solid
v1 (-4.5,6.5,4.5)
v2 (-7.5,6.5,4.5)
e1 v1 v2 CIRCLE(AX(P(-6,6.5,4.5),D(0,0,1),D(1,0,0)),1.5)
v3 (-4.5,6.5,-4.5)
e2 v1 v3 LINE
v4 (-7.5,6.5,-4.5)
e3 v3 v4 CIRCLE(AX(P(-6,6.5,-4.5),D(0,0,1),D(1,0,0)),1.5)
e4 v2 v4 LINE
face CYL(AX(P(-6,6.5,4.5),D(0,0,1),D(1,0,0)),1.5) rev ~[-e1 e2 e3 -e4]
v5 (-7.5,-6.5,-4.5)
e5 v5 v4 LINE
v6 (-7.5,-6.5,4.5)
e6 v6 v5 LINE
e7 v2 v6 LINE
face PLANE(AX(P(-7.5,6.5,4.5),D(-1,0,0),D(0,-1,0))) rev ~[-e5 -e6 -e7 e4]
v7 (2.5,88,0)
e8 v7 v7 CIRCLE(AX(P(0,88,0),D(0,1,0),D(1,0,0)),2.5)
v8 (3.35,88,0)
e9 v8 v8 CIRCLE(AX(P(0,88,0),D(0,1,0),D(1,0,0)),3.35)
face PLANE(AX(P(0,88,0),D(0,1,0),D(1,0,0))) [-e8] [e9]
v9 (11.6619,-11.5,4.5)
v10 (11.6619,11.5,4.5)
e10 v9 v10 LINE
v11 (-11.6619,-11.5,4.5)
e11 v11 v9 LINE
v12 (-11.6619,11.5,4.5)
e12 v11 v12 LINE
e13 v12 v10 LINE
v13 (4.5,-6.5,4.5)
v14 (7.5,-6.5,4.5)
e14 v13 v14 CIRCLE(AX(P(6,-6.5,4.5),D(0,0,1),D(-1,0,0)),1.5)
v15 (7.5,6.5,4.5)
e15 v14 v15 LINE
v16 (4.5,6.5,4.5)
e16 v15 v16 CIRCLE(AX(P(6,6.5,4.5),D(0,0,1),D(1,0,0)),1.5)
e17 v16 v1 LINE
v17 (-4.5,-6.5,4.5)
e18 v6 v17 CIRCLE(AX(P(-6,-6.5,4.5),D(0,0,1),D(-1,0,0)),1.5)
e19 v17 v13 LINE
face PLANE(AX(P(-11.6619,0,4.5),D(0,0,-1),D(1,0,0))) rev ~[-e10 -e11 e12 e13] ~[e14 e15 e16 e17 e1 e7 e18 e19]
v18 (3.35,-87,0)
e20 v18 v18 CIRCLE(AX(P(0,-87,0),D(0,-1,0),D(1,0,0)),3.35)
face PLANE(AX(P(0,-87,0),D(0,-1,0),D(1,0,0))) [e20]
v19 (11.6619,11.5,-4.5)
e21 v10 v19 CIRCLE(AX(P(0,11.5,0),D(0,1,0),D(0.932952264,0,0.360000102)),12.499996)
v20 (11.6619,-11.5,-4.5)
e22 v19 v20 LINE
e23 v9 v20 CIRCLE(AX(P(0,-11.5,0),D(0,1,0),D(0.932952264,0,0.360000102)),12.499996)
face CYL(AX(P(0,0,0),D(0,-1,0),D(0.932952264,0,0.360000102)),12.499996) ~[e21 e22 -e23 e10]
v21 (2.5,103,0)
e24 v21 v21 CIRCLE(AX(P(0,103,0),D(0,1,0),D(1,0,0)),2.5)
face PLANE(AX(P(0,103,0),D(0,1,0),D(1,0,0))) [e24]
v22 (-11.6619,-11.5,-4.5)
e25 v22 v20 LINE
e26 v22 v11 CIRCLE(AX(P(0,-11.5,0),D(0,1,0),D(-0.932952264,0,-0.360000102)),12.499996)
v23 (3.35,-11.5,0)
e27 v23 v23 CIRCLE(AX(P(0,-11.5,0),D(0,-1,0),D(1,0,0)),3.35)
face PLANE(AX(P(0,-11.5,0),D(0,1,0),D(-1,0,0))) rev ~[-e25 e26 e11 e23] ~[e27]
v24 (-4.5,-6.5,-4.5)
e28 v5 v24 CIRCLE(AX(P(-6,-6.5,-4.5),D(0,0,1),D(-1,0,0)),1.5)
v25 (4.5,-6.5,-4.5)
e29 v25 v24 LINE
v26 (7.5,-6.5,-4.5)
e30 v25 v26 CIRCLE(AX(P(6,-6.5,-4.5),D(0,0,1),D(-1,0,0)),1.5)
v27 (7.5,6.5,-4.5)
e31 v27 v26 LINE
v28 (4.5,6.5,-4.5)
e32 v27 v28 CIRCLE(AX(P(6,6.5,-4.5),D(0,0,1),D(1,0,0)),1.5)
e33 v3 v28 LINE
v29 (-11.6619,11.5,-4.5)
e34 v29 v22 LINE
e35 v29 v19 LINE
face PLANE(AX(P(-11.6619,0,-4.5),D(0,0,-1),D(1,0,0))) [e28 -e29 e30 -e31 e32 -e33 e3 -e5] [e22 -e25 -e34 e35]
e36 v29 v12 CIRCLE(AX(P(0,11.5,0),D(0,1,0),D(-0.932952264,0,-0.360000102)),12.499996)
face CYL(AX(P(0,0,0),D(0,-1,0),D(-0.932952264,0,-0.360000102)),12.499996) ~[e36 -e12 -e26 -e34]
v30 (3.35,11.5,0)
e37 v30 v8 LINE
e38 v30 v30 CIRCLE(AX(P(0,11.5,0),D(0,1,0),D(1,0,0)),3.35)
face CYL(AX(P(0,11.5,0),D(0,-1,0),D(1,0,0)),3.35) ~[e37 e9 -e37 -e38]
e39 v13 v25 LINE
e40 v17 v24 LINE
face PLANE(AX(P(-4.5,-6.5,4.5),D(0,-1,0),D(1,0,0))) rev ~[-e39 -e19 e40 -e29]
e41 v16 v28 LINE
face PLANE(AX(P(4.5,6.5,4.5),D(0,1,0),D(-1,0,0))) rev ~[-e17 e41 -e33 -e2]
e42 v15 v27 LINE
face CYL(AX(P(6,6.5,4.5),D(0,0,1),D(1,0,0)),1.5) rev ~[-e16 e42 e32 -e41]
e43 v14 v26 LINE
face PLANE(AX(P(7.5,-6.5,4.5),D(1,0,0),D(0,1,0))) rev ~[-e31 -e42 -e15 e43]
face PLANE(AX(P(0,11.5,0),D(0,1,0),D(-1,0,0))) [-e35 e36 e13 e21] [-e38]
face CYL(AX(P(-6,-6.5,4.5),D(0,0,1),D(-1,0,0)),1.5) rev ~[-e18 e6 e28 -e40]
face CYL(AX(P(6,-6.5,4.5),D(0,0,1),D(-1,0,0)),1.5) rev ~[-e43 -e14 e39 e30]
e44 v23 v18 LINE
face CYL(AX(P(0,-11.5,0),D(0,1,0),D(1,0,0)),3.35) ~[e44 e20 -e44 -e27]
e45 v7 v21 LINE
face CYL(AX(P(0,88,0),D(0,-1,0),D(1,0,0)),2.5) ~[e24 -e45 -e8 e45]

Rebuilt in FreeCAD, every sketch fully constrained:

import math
import FreeCAD as App
import Part
import Sketcher

doc = App.newDocument("Part")
body = doc.addObject("PartDesign::Body", "Body")

sketch1 = body.newObject("Sketcher::SketchObject", "Sketch")
sketch1.AttachmentSupport = (doc.getObject("XZ_Plane"), [""])
sketch1.MapMode = "FlatFace"
sketch1.addGeometry([
    Part.ArcOfCircle(Part.Circle(App.Vector(0, 0, 0), App.Vector(0, 0, 1), 12), math.radians(159), math.radians(201)),
    Part.LineSegment(App.Vector(-12, 4, 0), App.Vector(12, 4, 0)),
    Part.ArcOfCircle(Part.Circle(App.Vector(0, 0, 0), App.Vector(0, 0, 1), 12), math.radians(-21), math.radians(21)),
    Part.LineSegment(App.Vector(12, -4, 0), App.Vector(-12, -4, 0)),
], False)
sketch1.addConstraint([
    Sketcher.Constraint("Coincident", 0, 1, 1, 1),
    Sketcher.Constraint("Coincident", 1, 2, 2, 2),
    Sketcher.Constraint("Coincident", 2, 1, 3, 1),
    Sketcher.Constraint("Coincident", 3, 2, 0, 2),
    Sketcher.Constraint("Horizontal", 1),
    Sketcher.Constraint("Horizontal", 3),
    Sketcher.Constraint("Coincident", 0, 3, -1, 1),
    Sketcher.Constraint("Coincident", 2, 3, -1, 1),
    Sketcher.Constraint("Equal", 0, 2),
    Sketcher.Constraint("Vertical", 1, 2, 2, 1),
    Sketcher.Constraint("DistanceY", 2, 1, 1, 2, 9.0),
    Sketcher.Constraint("Radius", 0, 12.5),
])
pad1 = body.newObject("PartDesign::Pad", "Pad")
pad1.Profile = sketch1
pad1.Length = 23
pad1.Midplane = True

sketch2 = body.newObject("Sketcher::SketchObject", "Sketch001")
sketch2.AttachmentSupport = (doc.getObject("XY_Plane"), [""])
sketch2.MapMode = "FlatFace"
sketch2.AttachmentOffset = App.Placement(App.Vector(0, 0, 4.5), App.Rotation())
sketch2.addGeometry([
    Part.ArcOfCircle(Part.Circle(App.Vector(-6, -6.5, 0), App.Vector(0, 0, 1), 1.5), math.radians(180), math.radians(360)),
    Part.LineSegment(App.Vector(-4.5, -6.5, 0), App.Vector(4.5, -6.5, 0)),
    Part.ArcOfCircle(Part.Circle(App.Vector(6, -6.5, 0), App.Vector(0, 0, 1), 1.5), math.radians(180), math.radians(360)),
    Part.LineSegment(App.Vector(7.5, -6.5, 0), App.Vector(7.5, 6.5, 0)),
    Part.ArcOfCircle(Part.Circle(App.Vector(6, 6.5, 0), App.Vector(0, 0, 1), 1.5), math.radians(0), math.radians(180)),
    Part.LineSegment(App.Vector(4.5, 6.5, 0), App.Vector(-4.5, 6.5, 0)),
    Part.ArcOfCircle(Part.Circle(App.Vector(-6, 6.5, 0), App.Vector(0, 0, 1), 1.5), math.radians(0), math.radians(180)),
    Part.LineSegment(App.Vector(-7.5, 6.5, 0), App.Vector(-7.5, -6.5, 0)),
], False)
sketch2.addConstraint([
    Sketcher.Constraint("Coincident", 0, 2, 1, 1),
    Sketcher.Constraint("Coincident", 1, 2, 2, 1),
    Sketcher.Constraint("Tangent", 2, 2, 3, 1),
    Sketcher.Constraint("Tangent", 3, 2, 4, 1),
    Sketcher.Constraint("Coincident", 4, 2, 5, 1),
    Sketcher.Constraint("Coincident", 5, 2, 6, 1),
    Sketcher.Constraint("Tangent", 6, 2, 7, 1),
    Sketcher.Constraint("Tangent", 7, 2, 0, 1),
    Sketcher.Constraint("Horizontal", 1),
    Sketcher.Constraint("Vertical", 3),
    Sketcher.Constraint("Horizontal", 5),
    Sketcher.Constraint("Vertical", 7),
    Sketcher.Constraint("Equal", 0, 2),
    Sketcher.Constraint("Equal", 2, 4),
    Sketcher.Constraint("Equal", 4, 6),
    Sketcher.Constraint("Symmetric", 0, 3, 4, 3, -1, 1),
    Sketcher.Constraint("Horizontal", 0, 3, 2, 3),
    Sketcher.Constraint("Horizontal", 4, 3, 6, 3),
    Sketcher.Constraint("Horizontal", 2, 3, 0, 2),
    Sketcher.Constraint("Horizontal", 3, 2, 4, 2),
    Sketcher.Constraint("Radius", 0, 1.5),
    Sketcher.Constraint("DistanceX", 1, 1, 1, 2, 9.0),
    Sketcher.Constraint("DistanceY", 3, 1, 3, 2, 13.0),
])
pocket1 = body.newObject("PartDesign::Pocket", "Pocket")
pocket1.Profile = sketch2
pocket1.Type = "ThroughAll"

sketch3 = body.newObject("Sketcher::SketchObject", "Sketch002")
sketch3.AttachmentSupport = (doc.getObject("XZ_Plane"), [""])
sketch3.MapMode = "FlatFace"
sketch3.AttachmentOffset = App.Placement(App.Vector(0, 0, 11.5), App.Rotation())
sketch3.addGeometry(Part.Circle(App.Vector(0, 0, 0), App.Vector(0, 0, 1), 3.4), False)
sketch3.addConstraint([
    Sketcher.Constraint("Coincident", 0, 3, -1, 1),
    Sketcher.Constraint("Diameter", 0, 6.7),
])
pad2 = body.newObject("PartDesign::Pad", "Pad001")
pad2.Profile = sketch3
pad2.Length = 75.5

sketch4 = body.newObject("Sketcher::SketchObject", "Sketch003")
sketch4.AttachmentSupport = (doc.getObject("XZ_Plane"), [""])
sketch4.MapMode = "FlatFace"
sketch4.AttachmentOffset = App.Placement(App.Vector(0, 0, -11.5), App.Rotation())
sketch4.addGeometry(Part.Circle(App.Vector(0, 0, 0), App.Vector(0, 0, 1), 3.4), False)
sketch4.addConstraint([
    Sketcher.Constraint("Coincident", 0, 3, -1, 1),
    Sketcher.Constraint("Diameter", 0, 6.7),
])
pad3 = body.newObject("PartDesign::Pad", "Pad002")
pad3.Profile = sketch4
pad3.Length = 76.5
pad3.Reversed = True

sketch5 = body.newObject("Sketcher::SketchObject", "Sketch004")
sketch5.AttachmentSupport = (doc.getObject("XZ_Plane"), [""])
sketch5.MapMode = "FlatFace"
sketch5.AttachmentOffset = App.Placement(App.Vector(0, 0, -88), App.Rotation())
sketch5.addGeometry(Part.Circle(App.Vector(0, 0, 0), App.Vector(0, 0, 1), 2.5), False)
sketch5.addConstraint([
    Sketcher.Constraint("Coincident", 0, 3, -1, 1),
    Sketcher.Constraint("Diameter", 0, 5.0),
])
pad4 = body.newObject("PartDesign::Pad", "Pad003")
pad4.Profile = sketch5
pad4.Length = 15
pad4.Reversed = True

doc.recompute()
